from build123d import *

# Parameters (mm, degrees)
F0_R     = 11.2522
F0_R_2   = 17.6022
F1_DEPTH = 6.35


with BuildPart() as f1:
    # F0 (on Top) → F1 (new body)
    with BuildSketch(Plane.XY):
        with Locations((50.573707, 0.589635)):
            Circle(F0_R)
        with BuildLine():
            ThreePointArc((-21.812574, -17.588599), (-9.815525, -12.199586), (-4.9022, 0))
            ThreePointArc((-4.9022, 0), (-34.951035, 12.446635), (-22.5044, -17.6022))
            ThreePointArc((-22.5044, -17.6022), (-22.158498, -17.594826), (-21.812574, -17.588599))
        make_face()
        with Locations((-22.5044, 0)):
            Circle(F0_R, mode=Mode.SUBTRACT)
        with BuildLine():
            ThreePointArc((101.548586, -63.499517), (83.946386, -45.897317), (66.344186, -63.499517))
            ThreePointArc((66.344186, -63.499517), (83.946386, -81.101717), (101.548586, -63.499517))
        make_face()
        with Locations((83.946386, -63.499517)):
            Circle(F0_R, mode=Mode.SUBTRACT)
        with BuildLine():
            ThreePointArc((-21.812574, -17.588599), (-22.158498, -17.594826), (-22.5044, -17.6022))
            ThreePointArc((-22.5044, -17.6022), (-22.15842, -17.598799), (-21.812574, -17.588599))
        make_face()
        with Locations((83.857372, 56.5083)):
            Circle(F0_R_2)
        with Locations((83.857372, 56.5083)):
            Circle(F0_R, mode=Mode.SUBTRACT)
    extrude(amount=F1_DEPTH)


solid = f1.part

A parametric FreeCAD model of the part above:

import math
import FreeCAD as App
import Part
import Sketcher
from FreeCAD import Vector
Q = App.Units.Quantity

doc = App.newDocument("Part")
body = doc.addObject("PartDesign::Body", "Body")
body.AllowCompound = True

# Sketch on XY plane
sketch1 = body.newObject("Sketcher::SketchObject", "Sketch")
sketch1.AttachmentSupport = (doc.getObject("XY_Plane"), [""])
sketch1.MapMode = "FlatFace"
sketch1.addGeometry([
    Part.Circle(Vector(50.573707, 0.589635, 0), Vector(0, 0, 1), 11.2522),  # 0
    Part.ArcOfCircle(Part.Circle(Vector(-22.504399, 0, 0), Vector(0, 0, 1), 17.602199), math.radians(-87.747504), math.radians(0.000001)),  # 1
    Part.ArcOfCircle(Part.Circle(Vector(-22.5044, 0, 0), Vector(0, 0, 1), 17.6022), math.radians(0), math.radians(270)),  # 2
    Part.ArcOfCircle(Part.Circle(Vector(-22.504443, 0.001914, 0), Vector(0, 0, 1), 17.604114), math.radians(-89.999861), math.radians(-87.747608)),  # 3
    Part.Circle(Vector(-22.5044, 0, 0), Vector(0, 0, 1), 11.2522),  # 4
    Part.Circle(Vector(83.946386, -63.499517, 0), Vector(0, 0, 1), 17.6022),  # 5
    Part.Circle(Vector(83.946386, -63.499517, 0), Vector(0, 0, 1), 11.2522),  # 6
    Part.Circle(Vector(83.857372, 56.5083, 0), Vector(0, 0, 1), 17.6022),  # 7
    Part.Circle(Vector(83.857372, 56.5083, 0), Vector(0, 0, 1), 11.2522),  # 8
], False)
sketch1.addConstraint([
    Sketcher.Constraint("Coincident", 1, 2, 2, 1),
    Sketcher.Constraint("Coincident", 2, 2, 3, 1),
    Sketcher.Constraint("Coincident", 3, 2, 1, 1),
    Sketcher.Constraint("Coincident", 2, 3, 1, 3),
    Sketcher.Constraint("Coincident", 4, 3, 1, 3),
    Sketcher.Constraint("Coincident", 6, 3, 5, 3),
    Sketcher.Constraint("Coincident", 8, 3, 7, 3),
    Sketcher.Constraint("PointOnObject", 1, 3, -1),
    Sketcher.Constraint("PointOnObject", 1, 2, -1),
    Sketcher.Constraint("Diameter", 0, Q("0.886 in")),
    Sketcher.Constraint("Diameter", 4, Q("0.886 in")),
    Sketcher.Constraint("Diameter", 5, Q("1.386 in")),
    Sketcher.Constraint("Diameter", 6, Q("0.886 in")),
    Sketcher.Constraint("Diameter", 7, Q("1.386 in")),
    Sketcher.Constraint("Diameter", 8, Q("0.886 in")),
    Sketcher.Constraint("Radius", 1, Q("0.693 in")),
    Sketcher.Constraint("DistanceX", 1, 3, -1, 1, Q("0.886 in")),
    Sketcher.Constraint("DistanceX", 2, 2, -1, 1, Q("0.886 in")),
    Sketcher.Constraint("Radius", 3, 17.604114),
    Sketcher.Constraint("DistanceY", -1, 1, 7, 3, 56.5083),
    Sketcher.Constraint("DistanceY", 3, 2, -1, 1, 17.588599),
    Sketcher.Constraint("DistanceX", -1, 1, 7, 3, 83.857372),
    Sketcher.Constraint("DistanceX", 3, 3, 0, 3, 73.07815),
    Sketcher.Constraint("DistanceY", 3, 3, 0, 3, 0.587721),
    Sketcher.Constraint("DistanceX", 0, 3, 5, 3, 33.372679),
    Sketcher.Constraint("DistanceY", 5, 3, 0, 3, 64.089152),
])
pad1 = body.newObject("PartDesign::Pad", "Pad")
pad1.Profile = sketch1
pad1.Length = Q("0.25 in")

doc.recompute()
